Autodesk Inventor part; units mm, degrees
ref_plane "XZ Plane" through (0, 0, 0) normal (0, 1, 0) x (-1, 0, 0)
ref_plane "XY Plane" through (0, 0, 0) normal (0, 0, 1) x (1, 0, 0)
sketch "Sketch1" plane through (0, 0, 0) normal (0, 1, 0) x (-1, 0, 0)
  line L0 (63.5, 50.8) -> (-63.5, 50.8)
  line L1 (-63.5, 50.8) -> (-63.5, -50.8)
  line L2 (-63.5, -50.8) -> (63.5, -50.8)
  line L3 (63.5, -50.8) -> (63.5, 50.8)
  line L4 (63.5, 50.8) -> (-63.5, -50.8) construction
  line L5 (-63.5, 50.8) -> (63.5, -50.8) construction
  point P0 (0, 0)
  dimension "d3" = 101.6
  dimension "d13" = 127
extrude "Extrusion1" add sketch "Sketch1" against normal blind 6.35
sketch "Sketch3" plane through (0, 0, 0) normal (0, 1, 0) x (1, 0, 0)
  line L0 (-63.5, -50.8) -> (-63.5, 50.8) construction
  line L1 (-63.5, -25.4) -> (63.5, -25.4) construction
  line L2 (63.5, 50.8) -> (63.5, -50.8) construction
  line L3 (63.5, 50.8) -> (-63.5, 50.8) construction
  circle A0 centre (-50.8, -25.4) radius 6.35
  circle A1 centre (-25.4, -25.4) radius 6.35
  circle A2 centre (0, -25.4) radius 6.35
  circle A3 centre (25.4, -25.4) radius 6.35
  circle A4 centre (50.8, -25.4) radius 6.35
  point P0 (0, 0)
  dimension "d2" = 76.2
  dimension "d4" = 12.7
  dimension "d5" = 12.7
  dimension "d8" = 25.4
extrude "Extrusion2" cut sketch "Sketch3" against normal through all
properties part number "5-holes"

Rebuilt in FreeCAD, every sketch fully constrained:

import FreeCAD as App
import Part
import Sketcher
from FreeCAD import Vector
Q = App.Units.Quantity


def add_polygon(sketch, points):
    """Adds a closed chain of lines whose ends are joined by coincident constraints."""
    first, n = sketch.GeometryCount, len(points)
    for a, b in zip(points, points[1:] + points[:1]):
        sketch.addGeometry(Part.LineSegment(App.Vector(*a, 0), App.Vector(*b, 0)), False)
    for i in range(n):
        sketch.addConstraint(Sketcher.Constraint("Coincident", first + i, 2, first + (i + 1) % n, 1))

doc = App.newDocument("Part")
body = doc.addObject("PartDesign::Body", "Body")

# Sketch on XZ plane
sketch1 = body.newObject("Sketcher::SketchObject", "Sketch")
sketch1.AttachmentSupport = (doc.getObject("XZ_Plane"), [""])
sketch1.MapMode = "FlatFace"
add_polygon(sketch1, [(-63.5, -50.8), (-63.5, 50.8), (63.5, 50.8), (63.5, -50.8)])  # lines 0-3
sketch1.addConstraint(Sketcher.Constraint("Vertical", 0))
sketch1.addConstraint(Sketcher.Constraint("Horizontal", 1))
sketch1.addConstraint(Sketcher.Constraint("Vertical", 2))
sketch1.addConstraint(Sketcher.Constraint("Horizontal", 3))
sketch1.addConstraint(Sketcher.Constraint("Symmetric", 0, 2, 2, 2, -1, 1))
sketch1.addConstraint(Sketcher.Constraint("DistanceX", 1, 1, 1, 2, Q("5 in")))
sketch1.addConstraint(Sketcher.Constraint("DistanceY", 0, 1, 0, 2, Q("4 in")))
pad1 = body.newObject("PartDesign::Pad", "Pad")
pad1.Profile = sketch1
pad1.Length = Q("0.25 in")

# Sketch on XZ plane
sketch2 = body.newObject("Sketcher::SketchObject", "Sketch001")
sketch2.AttachmentSupport = (doc.getObject("XZ_Plane"), [""])
sketch2.MapMode = "FlatFace"
sketch2.addGeometry(Part.Circle(Vector(-50.8, 25.4, 0), Vector(0, 0, 1), 6.35), False)
sketch2.addGeometry(Part.Circle(Vector(-25.4, 25.4, 0), Vector(0, 0, 1), 6.35), False)
sketch2.addGeometry(Part.Circle(Vector(0, 25.4, 0), Vector(0, 0, 1), 6.35), False)
sketch2.addGeometry(Part.Circle(Vector(25.4, 25.4, 0), Vector(0, 0, 1), 6.35), False)
sketch2.addGeometry(Part.Circle(Vector(50.8, 25.4, 0), Vector(0, 0, 1), 6.35), False)
sketch2.addConstraint(Sketcher.Constraint("Equal", 0, 1))
sketch2.addConstraint(Sketcher.Constraint("Equal", 1, 2))
sketch2.addConstraint(Sketcher.Constraint("Equal", 2, 3))
sketch2.addConstraint(Sketcher.Constraint("Equal", 3, 4))
sketch2.addConstraint(Sketcher.Constraint("Symmetric", 1, 3, 3, 3, -2))
sketch2.addConstraint(Sketcher.Constraint("Symmetric", 0, 3, 4, 3, -2))
sketch2.addConstraint(Sketcher.Constraint("PointOnObject", 2, 3, -2))
sketch2.addConstraint(Sketcher.Constraint("Horizontal", 0, 3, 1, 3))
sketch2.addConstraint(Sketcher.Constraint("Horizontal", 1, 3, 2, 3))
sketch2.addConstraint(Sketcher.Constraint("Diameter", 0, Q("0.5 in")))
sketch2.addConstraint(Sketcher.Constraint("DistanceY", -1, 1, 0, 3, Q("1 in")))
sketch2.addConstraint(Sketcher.Constraint("DistanceX", 1, 3, -1, 1, Q("1 in")))
sketch2.addConstraint(Sketcher.Constraint("DistanceX", 0, 3, 1, 3, Q("1 in")))
pocket1 = body.newObject("PartDesign::Pocket", "Pocket")
pocket1.Profile = sketch2
pocket1.Type = "ThroughAll"
pocket1.Reversed = True

doc.recompute()
